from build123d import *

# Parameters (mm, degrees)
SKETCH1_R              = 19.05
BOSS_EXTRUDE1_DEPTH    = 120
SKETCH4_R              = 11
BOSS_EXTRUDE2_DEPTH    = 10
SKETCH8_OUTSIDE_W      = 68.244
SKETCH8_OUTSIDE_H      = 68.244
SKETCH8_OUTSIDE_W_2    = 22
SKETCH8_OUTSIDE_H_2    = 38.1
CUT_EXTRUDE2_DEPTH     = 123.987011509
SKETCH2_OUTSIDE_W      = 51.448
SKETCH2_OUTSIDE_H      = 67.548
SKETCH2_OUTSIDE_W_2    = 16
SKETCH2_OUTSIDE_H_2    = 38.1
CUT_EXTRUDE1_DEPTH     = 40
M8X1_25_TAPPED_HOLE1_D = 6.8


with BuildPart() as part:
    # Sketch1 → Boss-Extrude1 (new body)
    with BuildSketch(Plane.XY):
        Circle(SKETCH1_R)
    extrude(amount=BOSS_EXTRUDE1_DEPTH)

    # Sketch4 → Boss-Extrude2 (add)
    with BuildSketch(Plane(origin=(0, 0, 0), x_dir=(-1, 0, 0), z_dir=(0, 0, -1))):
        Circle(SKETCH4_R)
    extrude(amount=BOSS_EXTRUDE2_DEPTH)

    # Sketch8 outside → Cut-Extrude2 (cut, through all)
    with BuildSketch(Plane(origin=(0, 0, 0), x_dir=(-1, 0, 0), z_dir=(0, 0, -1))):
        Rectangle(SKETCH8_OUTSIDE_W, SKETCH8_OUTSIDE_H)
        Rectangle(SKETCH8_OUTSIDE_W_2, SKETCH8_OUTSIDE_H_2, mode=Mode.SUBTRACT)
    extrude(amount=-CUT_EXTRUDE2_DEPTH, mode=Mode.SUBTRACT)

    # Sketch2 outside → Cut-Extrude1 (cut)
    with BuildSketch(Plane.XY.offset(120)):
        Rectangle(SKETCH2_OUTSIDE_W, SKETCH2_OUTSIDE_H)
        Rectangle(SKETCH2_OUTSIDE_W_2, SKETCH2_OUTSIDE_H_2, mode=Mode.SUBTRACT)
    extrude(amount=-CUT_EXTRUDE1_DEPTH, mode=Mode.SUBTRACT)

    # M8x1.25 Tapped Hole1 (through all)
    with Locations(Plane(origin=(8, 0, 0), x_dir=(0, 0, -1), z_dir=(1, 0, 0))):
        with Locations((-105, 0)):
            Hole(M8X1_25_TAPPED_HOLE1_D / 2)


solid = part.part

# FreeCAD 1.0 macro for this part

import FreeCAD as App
import Part
import Sketcher
Q = App.Units.Quantity


def add_polygon(sketch, points):
    """Adds a closed chain of lines whose ends are joined by coincident constraints."""
    first, n = sketch.GeometryCount, len(points)
    for a, b in zip(points, points[1:] + points[:1]):
        sketch.addGeometry(Part.LineSegment(App.Vector(*a, 0), App.Vector(*b, 0)), False)
    for i in range(n):
        sketch.addConstraint(Sketcher.Constraint("Coincident", first + i, 2, first + (i + 1) % n, 1))

doc = App.newDocument("Part")
body = doc.addObject("PartDesign::Body", "Body")

# Sketch on XY plane
sketch1 = body.newObject("Sketcher::SketchObject", "Sketch")
sketch1.AttachmentSupport = (doc.getObject("XY_Plane"), [""])
sketch1.MapMode = "FlatFace"
sketch1.addGeometry(Part.Circle(App.Vector(0, 0, 0), App.Vector(0, 0, 1), 19), False)
sketch1.addConstraint([
    Sketcher.Constraint("Coincident", 0, 3, -1, 1),
    Sketcher.Constraint("Diameter", 0, Q("38.1 mm")),
])
pad1 = body.newObject("PartDesign::Pad", "Pad")
pad1.Profile = sketch1
pad1.Length = 120

# Sketch on XY plane
sketch2 = body.newObject("Sketcher::SketchObject", "Sketch001")
sketch2.AttachmentSupport = (doc.getObject("XY_Plane"), [""])
sketch2.MapMode = "FlatFace"
sketch2.addGeometry(Part.Circle(App.Vector(0, 0, 0), App.Vector(0, 0, 1), 11), False)
sketch2.addConstraint([
    Sketcher.Constraint("Coincident", 0, 3, -1, 1),
    Sketcher.Constraint("Diameter", 0, Q("22 mm")),
])
pad2 = body.newObject("PartDesign::Pad", "Pad001")
pad2.Profile = sketch2
pad2.Length = 10
pad2.Reversed = True

# Sketch on XY plane
sketch3 = body.newObject("Sketcher::SketchObject", "Sketch002")
sketch3.AttachmentSupport = (doc.getObject("XY_Plane"), [""])
sketch3.MapMode = "FlatFace"
add_polygon(sketch3, [(34, 34), (34, -34), (-34, -34), (-34, 34)])  # lines 0-3
add_polygon(sketch3, [(-11, -19), (11, -19), (11, 19), (-11, 19)])  # lines 4-7
sketch3.addConstraint([
    Sketcher.Constraint("Vertical", 0),
    Sketcher.Constraint("Horizontal", 1),
    Sketcher.Constraint("Vertical", 2),
    Sketcher.Constraint("Horizontal", 3),
    Sketcher.Constraint("Horizontal", 4),
    Sketcher.Constraint("Vertical", 5),
    Sketcher.Constraint("Horizontal", 6),
    Sketcher.Constraint("Vertical", 7),
    Sketcher.Constraint("Symmetric", 0, 2, 2, 2, -1, 1),
    Sketcher.Constraint("Symmetric", 4, 2, 6, 2, -1, 1),
    Sketcher.Constraint("Equal", 3, 0),
    Sketcher.Constraint("DistanceX", 4, 1, 4, 2, Q("22 mm")),
    Sketcher.Constraint("DistanceY", 5, 1, 5, 2, Q("38.1 mm")),
    Sketcher.Constraint("DistanceX", 1, 2, 1, 1, Q("68.244 mm")),
])
pocket1 = body.newObject("PartDesign::Pocket", "Pocket")
pocket1.Profile = sketch3
pocket1.Type = "ThroughAll"
pocket1.Reversed = True

# Sketch on XY plane
sketch4 = body.newObject("Sketcher::SketchObject", "Sketch003")
sketch4.AttachmentSupport = (doc.getObject("XY_Plane"), [""])
sketch4.MapMode = "FlatFace"
sketch4.AttachmentOffset = App.Placement(App.Vector(0, 0, 120), App.Rotation())
add_polygon(sketch4, [(-26, 34), (-26, -34), (26, -34), (26, 34)])  # lines 0-3
add_polygon(sketch4, [(8, -19), (-8, -19), (-8, 19), (8, 19)])  # lines 4-7
sketch4.addConstraint([
    Sketcher.Constraint("Vertical", 0),
    Sketcher.Constraint("Horizontal", 1),
    Sketcher.Constraint("Vertical", 2),
    Sketcher.Constraint("Horizontal", 3),
    Sketcher.Constraint("Horizontal", 4),
    Sketcher.Constraint("Vertical", 5),
    Sketcher.Constraint("Horizontal", 6),
    Sketcher.Constraint("Vertical", 7),
    Sketcher.Constraint("Symmetric", 0, 2, 2, 2, -1, 1),
    Sketcher.Constraint("Symmetric", 4, 2, 6, 2, -1, 1),
    Sketcher.Constraint("DistanceX", 4, 2, 4, 1, Q("16 mm")),
    Sketcher.Constraint("DistanceY", 5, 1, 5, 2, Q("38.1 mm")),
    Sketcher.Constraint("DistanceX", 1, 1, 1, 2, Q("51.448 mm")),
    Sketcher.Constraint("DistanceY", 0, 2, 0, 1, Q("67.548 mm")),
])
pocket2 = body.newObject("PartDesign::Pocket", "Pocket001")
pocket2.Profile = sketch4
pocket2.Length = 40

# Sketch on YZ plane
sketch5 = body.newObject("Sketcher::SketchObject", "Sketch004")
sketch5.AttachmentSupport = (doc.getObject("YZ_Plane"), [""])
sketch5.MapMode = "FlatFace"
sketch5.AttachmentOffset = App.Placement(App.Vector(0, 0, 8), App.Rotation())
sketch5.addGeometry(Part.Circle(App.Vector(0, 105, 0), App.Vector(0, 0, 1), 3.4), False)
sketch5.addConstraint([
    Sketcher.Constraint("PointOnObject", 0, 3, -2),
    Sketcher.Constraint("Diameter", 0, Q("6.8 mm")),
    Sketcher.Constraint("DistanceY", -1, 1, 0, 3, Q("105 mm")),
])
doc.recompute()
hole = body.newObject("PartDesign::Hole", "Hole")
hole.Profile = sketch5
hole.ThreadType = "None"
hole.Diameter = 6.8
hole.DepthType = "ThroughAll"

doc.recompute()
